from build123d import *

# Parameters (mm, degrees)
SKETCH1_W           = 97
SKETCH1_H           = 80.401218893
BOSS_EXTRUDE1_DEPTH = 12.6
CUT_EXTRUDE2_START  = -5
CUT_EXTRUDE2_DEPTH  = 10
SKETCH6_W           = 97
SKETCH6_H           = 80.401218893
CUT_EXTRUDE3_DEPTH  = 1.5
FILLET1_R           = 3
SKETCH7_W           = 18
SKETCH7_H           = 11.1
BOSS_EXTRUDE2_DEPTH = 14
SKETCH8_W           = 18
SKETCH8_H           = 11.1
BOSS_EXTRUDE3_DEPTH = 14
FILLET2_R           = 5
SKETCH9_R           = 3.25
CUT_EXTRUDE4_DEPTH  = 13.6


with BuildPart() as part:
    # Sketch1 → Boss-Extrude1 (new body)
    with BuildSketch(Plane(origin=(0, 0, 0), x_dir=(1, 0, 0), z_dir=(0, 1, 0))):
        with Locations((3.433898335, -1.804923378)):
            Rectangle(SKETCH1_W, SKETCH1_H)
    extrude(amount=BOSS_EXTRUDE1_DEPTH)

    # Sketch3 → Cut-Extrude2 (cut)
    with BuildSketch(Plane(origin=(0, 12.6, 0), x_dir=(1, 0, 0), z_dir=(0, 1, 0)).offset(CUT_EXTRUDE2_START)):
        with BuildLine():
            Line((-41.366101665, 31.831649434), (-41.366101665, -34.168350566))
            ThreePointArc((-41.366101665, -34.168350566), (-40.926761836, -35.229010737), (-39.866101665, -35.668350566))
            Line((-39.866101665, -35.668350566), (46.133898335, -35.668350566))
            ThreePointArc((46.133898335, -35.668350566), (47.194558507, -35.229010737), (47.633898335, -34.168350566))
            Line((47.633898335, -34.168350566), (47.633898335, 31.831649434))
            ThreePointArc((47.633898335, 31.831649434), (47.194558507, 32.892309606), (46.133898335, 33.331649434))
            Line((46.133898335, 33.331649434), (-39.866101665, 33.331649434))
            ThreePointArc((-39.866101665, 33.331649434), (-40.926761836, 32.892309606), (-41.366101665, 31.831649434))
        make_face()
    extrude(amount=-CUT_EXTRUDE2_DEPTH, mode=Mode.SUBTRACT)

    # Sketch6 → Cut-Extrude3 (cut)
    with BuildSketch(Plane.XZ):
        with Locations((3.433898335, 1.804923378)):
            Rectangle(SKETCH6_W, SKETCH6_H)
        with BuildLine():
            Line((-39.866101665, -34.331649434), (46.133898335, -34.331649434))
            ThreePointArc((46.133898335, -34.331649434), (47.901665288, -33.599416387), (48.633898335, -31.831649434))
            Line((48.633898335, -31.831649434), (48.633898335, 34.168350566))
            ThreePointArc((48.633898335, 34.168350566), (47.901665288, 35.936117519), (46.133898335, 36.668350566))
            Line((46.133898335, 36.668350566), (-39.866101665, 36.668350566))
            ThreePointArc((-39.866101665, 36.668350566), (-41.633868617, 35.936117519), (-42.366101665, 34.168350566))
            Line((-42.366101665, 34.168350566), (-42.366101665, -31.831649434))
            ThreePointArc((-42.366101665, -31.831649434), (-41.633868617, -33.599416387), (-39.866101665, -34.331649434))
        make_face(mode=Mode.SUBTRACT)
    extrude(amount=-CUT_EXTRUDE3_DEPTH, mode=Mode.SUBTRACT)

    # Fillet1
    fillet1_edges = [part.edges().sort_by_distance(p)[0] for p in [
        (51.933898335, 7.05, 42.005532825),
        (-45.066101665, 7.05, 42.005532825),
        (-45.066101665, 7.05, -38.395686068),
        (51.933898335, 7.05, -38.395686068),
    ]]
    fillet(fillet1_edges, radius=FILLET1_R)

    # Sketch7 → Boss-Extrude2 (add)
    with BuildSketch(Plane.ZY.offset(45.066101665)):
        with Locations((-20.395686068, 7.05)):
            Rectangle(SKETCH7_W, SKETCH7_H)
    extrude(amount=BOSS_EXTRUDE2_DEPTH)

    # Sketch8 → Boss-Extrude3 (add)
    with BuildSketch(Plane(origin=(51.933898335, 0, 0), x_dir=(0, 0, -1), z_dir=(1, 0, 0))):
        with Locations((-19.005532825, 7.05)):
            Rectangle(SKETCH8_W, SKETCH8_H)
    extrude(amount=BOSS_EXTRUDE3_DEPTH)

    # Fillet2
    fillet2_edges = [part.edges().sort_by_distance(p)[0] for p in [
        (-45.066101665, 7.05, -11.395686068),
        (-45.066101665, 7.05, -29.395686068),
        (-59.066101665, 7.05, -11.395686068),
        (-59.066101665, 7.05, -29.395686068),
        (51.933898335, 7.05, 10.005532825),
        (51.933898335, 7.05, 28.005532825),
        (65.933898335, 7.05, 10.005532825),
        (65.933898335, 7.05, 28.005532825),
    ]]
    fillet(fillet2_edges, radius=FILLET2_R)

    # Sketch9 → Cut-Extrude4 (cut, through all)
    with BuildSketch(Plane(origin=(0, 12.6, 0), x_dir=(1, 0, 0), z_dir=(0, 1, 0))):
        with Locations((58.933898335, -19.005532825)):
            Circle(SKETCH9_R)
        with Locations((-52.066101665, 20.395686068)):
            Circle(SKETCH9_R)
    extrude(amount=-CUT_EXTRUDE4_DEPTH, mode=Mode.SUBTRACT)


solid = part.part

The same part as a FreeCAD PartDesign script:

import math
import FreeCAD as App
import Part
import Sketcher


def edges_at(feature, points):
    """Names of the edges that pass closest to the given points."""
    edges = feature.Shape.Edges
    near = lambda p: min(range(len(edges)), key=lambda i: edges[i].distToShape(Part.Vertex(*p))[0])
    return sorted({f"Edge{near(p) + 1}" for p in points})

doc = App.newDocument("Part")
body = doc.addObject("PartDesign::Body", "Body")

# Sketch on XZ plane
sketch1 = body.newObject("Sketcher::SketchObject", "Sketch")
sketch1.AttachmentSupport = (doc.getObject("XZ_Plane"), [""])
sketch1.MapMode = "FlatFace"
sketch1.addGeometry(Part.LineSegment(App.Vector(-45.066102, -38.395686, 0), App.Vector(-45.066102, 42.005533, 0)), False)
sketch1.addGeometry(Part.LineSegment(App.Vector(-45.066102, 42.005533, 0), App.Vector(51.933898, 42.005533, 0)), False)
sketch1.addGeometry(Part.LineSegment(App.Vector(51.933898, 42.005533, 0), App.Vector(51.933898, -38.395686, 0)), False)
sketch1.addGeometry(Part.LineSegment(App.Vector(51.933898, -38.395686, 0), App.Vector(-45.066102, -38.395686, 0)), False)
sketch1.addConstraint(Sketcher.Constraint("Coincident", 0, 2, 1, 1))
sketch1.addConstraint(Sketcher.Constraint("Coincident", 1, 2, 2, 1))
sketch1.addConstraint(Sketcher.Constraint("Coincident", 2, 2, 3, 1))
sketch1.addConstraint(Sketcher.Constraint("Coincident", 3, 2, 0, 1))
sketch1.addConstraint(Sketcher.Constraint("Vertical", 0))
sketch1.addConstraint(Sketcher.Constraint("Horizontal", 1))
sketch1.addConstraint(Sketcher.Constraint("Vertical", 2))
sketch1.addConstraint(Sketcher.Constraint("Horizontal", 3))
sketch1.addConstraint(Sketcher.Constraint("DistanceX", 1, 1, 1, 2, 97.0))
sketch1.addConstraint(Sketcher.Constraint("DistanceY", 0, 1, 0, 2, 80.401219))
sketch1.addConstraint(Sketcher.Constraint("DistanceX", 0, 2, -1, 1, 45.066102))
sketch1.addConstraint(Sketcher.Constraint("DistanceY", -1, 1, 0, 2, 42.005533))
pad1 = body.newObject("PartDesign::Pad", "Pad")
pad1.Profile = sketch1
pad1.Length = 12.6
pad1.Reversed = True

# Sketch on XZ plane
sketch2 = body.newObject("Sketcher::SketchObject", "Sketch001")
sketch2.AttachmentSupport = (doc.getObject("XZ_Plane"), [""])
sketch2.MapMode = "FlatFace"
sketch2.AttachmentOffset = App.Placement(App.Vector(0, 0, -7.6), App.Rotation())
sketch2.addGeometry(Part.LineSegment(App.Vector(-41.366102, -31.831649, 0), App.Vector(-41.366102, 34.168351, 0)), False)
sketch2.addGeometry(Part.ArcOfCircle(Part.Circle(App.Vector(-39.866102, 34.168351, 0), App.Vector(0, 0, 1), 1.5), math.radians(90), math.radians(180)), False)
sketch2.addGeometry(Part.LineSegment(App.Vector(-39.866102, 35.668351, 0), App.Vector(46.133898, 35.668351, 0)), False)
sketch2.addGeometry(Part.ArcOfCircle(Part.Circle(App.Vector(46.133898, 34.168351, 0), App.Vector(0, 0, 1), 1.5), math.radians(0), math.radians(90)), False)
sketch2.addGeometry(Part.LineSegment(App.Vector(47.633898, 34.168351, 0), App.Vector(47.633898, -31.831649, 0)), False)
sketch2.addGeometry(Part.ArcOfCircle(Part.Circle(App.Vector(46.133898, -31.831649, 0), App.Vector(0, 0, 1), 1.5), math.radians(-90), math.radians(0)), False)
sketch2.addGeometry(Part.LineSegment(App.Vector(46.133898, -33.331649, 0), App.Vector(-39.866102, -33.331649, 0)), False)
sketch2.addGeometry(Part.ArcOfCircle(Part.Circle(App.Vector(-39.866102, -31.831649, 0), App.Vector(0, 0, 1), 1.5), math.radians(-180), math.radians(-90)), False)
sketch2.addConstraint(Sketcher.Constraint("Tangent", 0, 2, 1, 2))
sketch2.addConstraint(Sketcher.Constraint("Tangent", 1, 1, 2, 1))
sketch2.addConstraint(Sketcher.Constraint("Tangent", 2, 2, 3, 2))
sketch2.addConstraint(Sketcher.Constraint("Tangent", 3, 1, 4, 1))
sketch2.addConstraint(Sketcher.Constraint("Tangent", 4, 2, 5, 2))
sketch2.addConstraint(Sketcher.Constraint("Tangent", 5, 1, 6, 1))
sketch2.addConstraint(Sketcher.Constraint("Tangent", 6, 2, 7, 2))
sketch2.addConstraint(Sketcher.Constraint("Tangent", 7, 1, 0, 1))
sketch2.addConstraint(Sketcher.Constraint("Vertical", 0))
sketch2.addConstraint(Sketcher.Constraint("Horizontal", 2))
sketch2.addConstraint(Sketcher.Constraint("Vertical", 4))
sketch2.addConstraint(Sketcher.Constraint("Horizontal", 6))
sketch2.addConstraint(Sketcher.Constraint("Equal", 1, 3))
sketch2.addConstraint(Sketcher.Constraint("Equal", 3, 5))
sketch2.addConstraint(Sketcher.Constraint("Equal", 5, 7))
sketch2.addConstraint(Sketcher.Constraint("Radius", 1, 1.5))
sketch2.addConstraint(Sketcher.Constraint("DistanceX", 2, 1, 2, 2, 86.0))
sketch2.addConstraint(Sketcher.Constraint("DistanceY", 0, 1, 0, 2, 66.0))
sketch2.addConstraint(Sketcher.Constraint("DistanceX", 1, 3, -1, 1, 39.866102))
sketch2.addConstraint(Sketcher.Constraint("DistanceY", -1, 1, 1, 3, 34.168351))
pocket1 = body.newObject("PartDesign::Pocket", "Pocket")
pocket1.Profile = sketch2
pocket1.Length = 10
pocket1.Reversed = True

# Sketch on XZ plane
sketch3 = body.newObject("Sketcher::SketchObject", "Sketch002")
sketch3.AttachmentSupport = (doc.getObject("XZ_Plane"), [""])
sketch3.MapMode = "FlatFace"
sketch3.addGeometry(Part.LineSegment(App.Vector(-45.066102, 42.005533, 0), App.Vector(-45.066102, -38.395686, 0)), False)
sketch3.addGeometry(Part.LineSegment(App.Vector(-45.066102, -38.395686, 0), App.Vector(51.933898, -38.395686, 0)), False)
sketch3.addGeometry(Part.LineSegment(App.Vector(51.933898, -38.395686, 0), App.Vector(51.933898, 42.005533, 0)), False)
sketch3.addGeometry(Part.LineSegment(App.Vector(51.933898, 42.005533, 0), App.Vector(-45.066102, 42.005533, 0)), False)
sketch3.addGeometry(Part.LineSegment(App.Vector(46.133898, -34.331649, 0), App.Vector(-39.866102, -34.331649, 0)), False)
sketch3.addGeometry(Part.ArcOfCircle(Part.Circle(App.Vector(-39.866102, -31.831649, 0), App.Vector(0, 0, 1), 2.5), math.radians(-180), math.radians(-90)), False)
sketch3.addGeometry(Part.LineSegment(App.Vector(-42.366102, -31.831649, 0), App.Vector(-42.366102, 34.168351, 0)), False)
sketch3.addGeometry(Part.ArcOfCircle(Part.Circle(App.Vector(-39.866102, 34.168351, 0), App.Vector(0, 0, 1), 2.5), math.radians(90), math.radians(180)), False)
sketch3.addGeometry(Part.LineSegment(App.Vector(-39.866102, 36.668351, 0), App.Vector(46.133898, 36.668351, 0)), False)
sketch3.addGeometry(Part.ArcOfCircle(Part.Circle(App.Vector(46.133898, 34.168351, 0), App.Vector(0, 0, 1), 2.5), math.radians(0), math.radians(90)), False)
sketch3.addGeometry(Part.LineSegment(App.Vector(48.633898, 34.168351, 0), App.Vector(48.633898, -31.831649, 0)), False)
sketch3.addGeometry(Part.ArcOfCircle(Part.Circle(App.Vector(46.133898, -31.831649, 0), App.Vector(0, 0, 1), 2.5), math.radians(-90), math.radians(0)), False)
sketch3.addConstraint(Sketcher.Constraint("Coincident", 0, 2, 1, 1))
sketch3.addConstraint(Sketcher.Constraint("Coincident", 1, 2, 2, 1))
sketch3.addConstraint(Sketcher.Constraint("Coincident", 2, 2, 3, 1))
sketch3.addConstraint(Sketcher.Constraint("Coincident", 3, 2, 0, 1))
sketch3.addConstraint(Sketcher.Constraint("Tangent", 4, 2, 5, 2))
sketch3.addConstraint(Sketcher.Constraint("Tangent", 5, 1, 6, 1))
sketch3.addConstraint(Sketcher.Constraint("Tangent", 6, 2, 7, 2))
sketch3.addConstraint(Sketcher.Constraint("Tangent", 7, 1, 8, 1))
sketch3.addConstraint(Sketcher.Constraint("Tangent", 8, 2, 9, 2))
sketch3.addConstraint(Sketcher.Constraint("Tangent", 9, 1, 10, 1))
sketch3.addConstraint(Sketcher.Constraint("Tangent", 10, 2, 11, 2))
sketch3.addConstraint(Sketcher.Constraint("Tangent", 11, 1, 4, 1))
sketch3.addConstraint(Sketcher.Constraint("Vertical", 0))
sketch3.addConstraint(Sketcher.Constraint("Horizontal", 1))
sketch3.addConstraint(Sketcher.Constraint("Vertical", 2))
sketch3.addConstraint(Sketcher.Constraint("Horizontal", 3))
sketch3.addConstraint(Sketcher.Constraint("Horizontal", 4))
sketch3.addConstraint(Sketcher.Constraint("Vertical", 6))
sketch3.addConstraint(Sketcher.Constraint("Horizontal", 8))
sketch3.addConstraint(Sketcher.Constraint("Vertical", 10))
sketch3.addConstraint(Sketcher.Constraint("Equal", 5, 7))
sketch3.addConstraint(Sketcher.Constraint("Equal", 7, 9))
sketch3.addConstraint(Sketcher.Constraint("Equal", 9, 11))
sketch3.addConstraint(Sketcher.Constraint("Radius", 5, 2.5))
sketch3.addConstraint(Sketcher.Constraint("DistanceX", 1, 1, 1, 2, 97.0))
sketch3.addConstraint(Sketcher.Constraint("DistanceX", 4, 2, 4, 1, 86.0))
sketch3.addConstraint(Sketcher.Constraint("DistanceY", 6, 1, 6, 2, 66.0))
sketch3.addConstraint(Sketcher.Constraint("DistanceX", 0, 2, 5, 3, 5.2))
sketch3.addConstraint(Sketcher.Constraint("DistanceY", 0, 2, 0, 1, 80.401219))
sketch3.addConstraint(Sketcher.Constraint("DistanceX", 5, 3, -1, 1, 39.866102))
sketch3.addConstraint(Sketcher.Constraint("DistanceY", 5, 3, -1, 1, 31.831649))
sketch3.addConstraint(Sketcher.Constraint("DistanceY", 0, 2, -1, 1, 38.395686))
pocket2 = body.newObject("PartDesign::Pocket", "Pocket001")
pocket2.Profile = sketch3
pocket2.Length = 1.5
doc.recompute()

fillet = body.newObject("PartDesign::Fillet", "Fillet")
fillet.Base = (pocket2, edges_at(pocket2, [
    (51.934, 7.05, 42.006),
    (-45.066, 7.05, 42.006),
    (-45.066, 7.05, -38.396),
    (51.934, 7.05, -38.396),
]))
fillet.Radius = 3

# Sketch on YZ plane
sketch4 = body.newObject("Sketcher::SketchObject", "Sketch003")
sketch4.AttachmentSupport = (doc.getObject("YZ_Plane"), [""])
sketch4.MapMode = "FlatFace"
sketch4.AttachmentOffset = App.Placement(App.Vector(0, 0, -45.066102), App.Rotation())
sketch4.addGeometry(Part.LineSegment(App.Vector(12.6, -29.395686, 0), App.Vector(1.5, -29.395686, 0)), False)
sketch4.addGeometry(Part.LineSegment(App.Vector(1.5, -29.395686, 0), App.Vector(1.5, -11.395686, 0)), False)
sketch4.addGeometry(Part.LineSegment(App.Vector(1.5, -11.395686, 0), App.Vector(12.6, -11.395686, 0)), False)
sketch4.addGeometry(Part.LineSegment(App.Vector(12.6, -11.395686, 0), App.Vector(12.6, -29.395686, 0)), False)
sketch4.addConstraint(Sketcher.Constraint("Coincident", 0, 2, 1, 1))
sketch4.addConstraint(Sketcher.Constraint("Coincident", 1, 2, 2, 1))
sketch4.addConstraint(Sketcher.Constraint("Coincident", 2, 2, 3, 1))
sketch4.addConstraint(Sketcher.Constraint("Coincident", 3, 2, 0, 1))
sketch4.addConstraint(Sketcher.Constraint("Horizontal", 0))
sketch4.addConstraint(Sketcher.Constraint("Vertical", 1))
sketch4.addConstraint(Sketcher.Constraint("Horizontal", 2))
sketch4.addConstraint(Sketcher.Constraint("Vertical", 3))
sketch4.addConstraint(Sketcher.Constraint("DistanceY", 1, 1, 1, 2, 18.0))
sketch4.addConstraint(Sketcher.Constraint("DistanceX", 0, 2, 0, 1, 11.1))
sketch4.addConstraint(Sketcher.Constraint("DistanceX", -1, 1, 0, 2, 1.5))
sketch4.addConstraint(Sketcher.Constraint("DistanceY", 0, 2, -1, 1, 29.395686))
pad2 = body.newObject("PartDesign::Pad", "Pad001")
pad2.Profile = sketch4
pad2.Length = 14
pad2.Reversed = True

# Sketch on YZ plane
sketch5 = body.newObject("Sketcher::SketchObject", "Sketch004")
sketch5.AttachmentSupport = (doc.getObject("YZ_Plane"), [""])
sketch5.MapMode = "FlatFace"
sketch5.AttachmentOffset = App.Placement(App.Vector(0, 0, 51.933898), App.Rotation())
sketch5.addGeometry(Part.LineSegment(App.Vector(12.6, 28.005533, 0), App.Vector(1.5, 28.005533, 0)), False)
sketch5.addGeometry(Part.LineSegment(App.Vector(1.5, 28.005533, 0), App.Vector(1.5, 10.005533, 0)), False)
sketch5.addGeometry(Part.LineSegment(App.Vector(1.5, 10.005533, 0), App.Vector(12.6, 10.005533, 0)), False)
sketch5.addGeometry(Part.LineSegment(App.Vector(12.6, 10.005533, 0), App.Vector(12.6, 28.005533, 0)), False)
sketch5.addConstraint(Sketcher.Constraint("Coincident", 0, 2, 1, 1))
sketch5.addConstraint(Sketcher.Constraint("Coincident", 1, 2, 2, 1))
sketch5.addConstraint(Sketcher.Constraint("Coincident", 2, 2, 3, 1))
sketch5.addConstraint(Sketcher.Constraint("Coincident", 3, 2, 0, 1))
sketch5.addConstraint(Sketcher.Constraint("Horizontal", 0))
sketch5.addConstraint(Sketcher.Constraint("Vertical", 1))
sketch5.addConstraint(Sketcher.Constraint("Horizontal", 2))
sketch5.addConstraint(Sketcher.Constraint("Vertical", 3))
sketch5.addConstraint(Sketcher.Constraint("DistanceY", 1, 2, 1, 1, 18.0))
sketch5.addConstraint(Sketcher.Constraint("DistanceX", 0, 2, 0, 1, 11.1))
sketch5.addConstraint(Sketcher.Constraint("DistanceX", -1, 1, 0, 2, 1.5))
sketch5.addConstraint(Sketcher.Constraint("DistanceY", -1, 1, 0, 2, 28.005533))
pad3 = body.newObject("PartDesign::Pad", "Pad002")
pad3.Profile = sketch5
pad3.Length = 14
doc.recompute()

fillet2 = body.newObject("PartDesign::Fillet", "Fillet001")
fillet2.Base = (pad3, edges_at(pad3, [
    (-45.066, 7.05, -11.396),
    (-45.066, 7.05, -29.396),
    (-59.066, 7.05, -11.396),
    (-59.066, 7.05, -29.396),
    (51.934, 7.05, 10.006),
    (51.934, 7.05, 28.006),
    (65.934, 7.05, 10.006),
    (65.934, 7.05, 28.006),
]))
fillet2.Radius = 5

# Sketch on XZ plane
sketch6 = body.newObject("Sketcher::SketchObject", "Sketch005")
sketch6.AttachmentSupport = (doc.getObject("XZ_Plane"), [""])
sketch6.MapMode = "FlatFace"
sketch6.AttachmentOffset = App.Placement(App.Vector(0, 0, -12.6), App.Rotation())
sketch6.addGeometry(Part.Circle(App.Vector(58.933898, 19.005533, 0), App.Vector(0, 0, 1), 3.25), False)
sketch6.addGeometry(Part.Circle(App.Vector(-52.066102, -20.395686, 0), App.Vector(0, 0, 1), 3.25), False)
sketch6.addConstraint(Sketcher.Constraint("Equal", 0, 1))
sketch6.addConstraint(Sketcher.Constraint("Diameter", 0, 6.5))
sketch6.addConstraint(Sketcher.Constraint("DistanceX", 1, 3, 0, 3, 111.0))
sketch6.addConstraint(Sketcher.Constraint("DistanceX", -1, 1, 0, 3, 58.933898))
sketch6.addConstraint(Sketcher.Constraint("DistanceY", 1, 3, 0, 3, 39.401219))
sketch6.addConstraint(Sketcher.Constraint("DistanceY", -1, 1, 0, 3, 19.005533))
pocket3 = body.newObject("PartDesign::Pocket", "Pocket002")
pocket3.Profile = sketch6
pocket3.Type = "ThroughAll"
pocket3.Reversed = True

doc.recompute()
